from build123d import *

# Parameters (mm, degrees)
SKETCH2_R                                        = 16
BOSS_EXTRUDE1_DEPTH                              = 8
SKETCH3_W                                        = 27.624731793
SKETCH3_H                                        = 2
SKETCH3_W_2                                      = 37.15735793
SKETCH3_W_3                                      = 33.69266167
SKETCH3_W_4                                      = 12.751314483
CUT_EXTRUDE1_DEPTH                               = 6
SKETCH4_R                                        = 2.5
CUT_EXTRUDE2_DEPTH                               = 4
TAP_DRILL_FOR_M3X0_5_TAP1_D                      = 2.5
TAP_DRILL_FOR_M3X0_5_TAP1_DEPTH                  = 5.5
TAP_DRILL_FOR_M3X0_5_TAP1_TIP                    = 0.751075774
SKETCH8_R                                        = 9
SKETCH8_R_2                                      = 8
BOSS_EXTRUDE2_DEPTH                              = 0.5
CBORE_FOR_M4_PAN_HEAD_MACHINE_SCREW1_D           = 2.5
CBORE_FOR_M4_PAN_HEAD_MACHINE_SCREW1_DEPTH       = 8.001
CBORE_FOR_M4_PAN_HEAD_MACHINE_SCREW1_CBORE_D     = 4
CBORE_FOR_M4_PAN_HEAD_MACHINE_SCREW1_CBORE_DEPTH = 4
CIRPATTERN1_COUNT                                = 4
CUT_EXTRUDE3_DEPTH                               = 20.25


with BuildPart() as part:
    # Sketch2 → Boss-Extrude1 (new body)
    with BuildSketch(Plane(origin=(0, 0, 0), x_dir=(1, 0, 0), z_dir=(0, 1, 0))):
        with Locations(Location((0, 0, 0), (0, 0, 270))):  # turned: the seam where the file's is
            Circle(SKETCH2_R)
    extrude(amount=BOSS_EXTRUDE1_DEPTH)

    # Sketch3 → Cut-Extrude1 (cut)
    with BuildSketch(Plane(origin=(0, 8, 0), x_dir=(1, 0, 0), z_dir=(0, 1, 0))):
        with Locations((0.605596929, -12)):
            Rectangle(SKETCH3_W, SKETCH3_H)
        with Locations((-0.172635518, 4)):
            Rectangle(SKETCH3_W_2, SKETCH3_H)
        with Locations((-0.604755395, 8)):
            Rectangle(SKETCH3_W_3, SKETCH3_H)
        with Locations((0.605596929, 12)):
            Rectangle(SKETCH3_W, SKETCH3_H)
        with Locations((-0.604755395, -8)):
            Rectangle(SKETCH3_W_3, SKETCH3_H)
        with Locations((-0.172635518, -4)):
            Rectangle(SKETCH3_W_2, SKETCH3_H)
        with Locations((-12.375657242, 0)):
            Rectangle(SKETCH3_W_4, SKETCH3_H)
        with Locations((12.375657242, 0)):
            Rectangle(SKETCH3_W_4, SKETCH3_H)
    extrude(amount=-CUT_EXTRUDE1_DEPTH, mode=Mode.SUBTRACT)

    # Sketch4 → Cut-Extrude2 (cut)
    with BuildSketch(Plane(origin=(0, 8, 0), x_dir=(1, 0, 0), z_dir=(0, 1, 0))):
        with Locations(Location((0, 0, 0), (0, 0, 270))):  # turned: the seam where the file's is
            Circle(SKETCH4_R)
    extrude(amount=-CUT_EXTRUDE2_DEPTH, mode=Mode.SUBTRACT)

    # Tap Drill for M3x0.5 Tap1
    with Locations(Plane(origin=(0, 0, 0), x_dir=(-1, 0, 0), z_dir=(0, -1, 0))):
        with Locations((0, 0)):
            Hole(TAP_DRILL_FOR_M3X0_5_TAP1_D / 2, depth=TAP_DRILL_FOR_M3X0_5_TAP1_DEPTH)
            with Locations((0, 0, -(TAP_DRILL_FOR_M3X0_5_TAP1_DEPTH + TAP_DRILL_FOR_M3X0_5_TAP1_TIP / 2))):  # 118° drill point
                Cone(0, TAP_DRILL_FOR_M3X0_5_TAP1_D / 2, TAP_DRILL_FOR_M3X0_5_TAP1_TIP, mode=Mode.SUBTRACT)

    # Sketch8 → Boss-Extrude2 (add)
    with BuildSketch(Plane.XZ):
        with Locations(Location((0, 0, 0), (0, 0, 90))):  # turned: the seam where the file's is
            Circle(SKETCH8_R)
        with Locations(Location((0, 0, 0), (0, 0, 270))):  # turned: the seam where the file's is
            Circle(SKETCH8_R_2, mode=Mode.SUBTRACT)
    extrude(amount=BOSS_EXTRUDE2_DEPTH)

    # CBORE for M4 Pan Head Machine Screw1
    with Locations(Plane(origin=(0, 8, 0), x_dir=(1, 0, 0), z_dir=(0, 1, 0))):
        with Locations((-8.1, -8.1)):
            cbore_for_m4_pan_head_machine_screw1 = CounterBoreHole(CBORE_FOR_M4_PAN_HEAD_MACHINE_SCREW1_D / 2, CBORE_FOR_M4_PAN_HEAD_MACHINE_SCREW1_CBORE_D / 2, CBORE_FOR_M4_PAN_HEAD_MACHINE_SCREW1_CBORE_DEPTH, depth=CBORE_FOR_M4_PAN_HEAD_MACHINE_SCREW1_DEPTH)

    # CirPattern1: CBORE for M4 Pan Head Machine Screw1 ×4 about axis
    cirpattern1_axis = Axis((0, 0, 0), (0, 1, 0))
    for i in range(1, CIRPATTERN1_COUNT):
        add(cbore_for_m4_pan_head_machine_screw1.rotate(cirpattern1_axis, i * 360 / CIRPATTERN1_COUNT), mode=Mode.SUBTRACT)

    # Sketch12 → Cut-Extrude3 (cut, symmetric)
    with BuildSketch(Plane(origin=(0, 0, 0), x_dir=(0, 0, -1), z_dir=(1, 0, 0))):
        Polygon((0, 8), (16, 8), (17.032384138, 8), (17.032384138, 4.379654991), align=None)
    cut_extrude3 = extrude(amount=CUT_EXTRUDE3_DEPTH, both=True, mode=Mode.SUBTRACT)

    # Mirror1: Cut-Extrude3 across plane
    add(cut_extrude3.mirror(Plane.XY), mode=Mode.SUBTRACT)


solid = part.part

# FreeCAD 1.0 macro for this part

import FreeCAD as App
import Part
import Sketcher
Q = App.Units.Quantity

doc = App.newDocument("Part")
params = doc.addObject("Spreadsheet::Sheet", "Params")
for row, (alias, value) in enumerate([
    ("sketch1_diameter", "32 mm"),
    ("pad1_length", "8 mm"),
    ("sketch2_height", "2 mm"),
    ("pocket1_length", "6 mm"),
    ("sketch3_diameter", "5 mm"),
    ("pocket2_length", "4 mm"),
    ("sketch4_diameter", "2.5 mm"),
    ("hole_diameter", "2.5 mm"),
    ("hole_depth", "5.5 mm"),
    ("sketch5_diameter", "18 mm"),
    ("sketch5_diameter2", "16 mm"),
    ("pad2_length", "0.5 mm"),
    ("sketch6_diameter", "2.5 mm"),
    ("hole2_diameter", "2.5 mm"),
    ("hole2_depth", "8.001 mm"),
    ("hole2_cbore_diameter", "4 mm"),
    ("hole2_cbore_depth", "4 mm"),
    ("pocket3_length", "40.5 mm"),
], start=1):
    params.set(f"A{row}", alias)
    params.set(f"B{row}", "=" + value)
    params.setAlias(f"B{row}", alias)

body = doc.addObject("PartDesign::Body", "Body")

sketch1 = doc.addObject("Sketcher::SketchObject", "Sketch")
body.addObject(sketch1)
sketch1.AttachmentSupport = (doc.XZ_Plane, [""])
sketch1.MapMode = "FlatFace"
sketch1.addGeometry(Part.Circle(App.Vector(0, 0, 0), App.Vector(0, 0, 1), 16), False)
sketch1.addConstraint(Sketcher.Constraint("Coincident", 0, 3, -1, 1))
sketch1.addConstraint(Sketcher.Constraint("Diameter", 0, Q("32 mm")))
sketch1.setExpression("Constraints[1]", "Params.sketch1_diameter")
pad1 = doc.addObject("PartDesign::Pad", "Pad")
body.addObject(pad1)
pad1.Profile = sketch1
pad1.setExpression("Length", "Params.pad1_length")
pad1.Reversed = True

sketch2 = doc.addObject("Sketcher::SketchObject", "Sketch001")
body.addObject(sketch2)
sketch2.AttachmentSupport = (doc.XZ_Plane, [""])
sketch2.MapMode = "FlatFace"
sketch2.AttachmentOffset = App.Placement(App.Vector(0, 0, -8), App.Rotation())
sketch2.addGeometry(Part.LineSegment(App.Vector(-13.2, 11, 0), App.Vector(-13.2, 13, 0)), False)
sketch2.addGeometry(Part.LineSegment(App.Vector(-13.2, 13, 0), App.Vector(14.4, 13, 0)), False)
sketch2.addGeometry(Part.LineSegment(App.Vector(14.4, 13, 0), App.Vector(14.4, 11, 0)), False)
sketch2.addGeometry(Part.LineSegment(App.Vector(14.4, 11, 0), App.Vector(-13.2, 11, 0)), False)
sketch2.addGeometry(Part.LineSegment(App.Vector(-18.8, -5, 0), App.Vector(-18.8, -3, 0)), False)
sketch2.addGeometry(Part.LineSegment(App.Vector(-18.8, -3, 0), App.Vector(18.4, -3, 0)), False)
sketch2.addGeometry(Part.LineSegment(App.Vector(18.4, -3, 0), App.Vector(18.4, -5, 0)), False)
sketch2.addGeometry(Part.LineSegment(App.Vector(18.4, -5, 0), App.Vector(-18.8, -5, 0)), False)
sketch2.addGeometry(Part.LineSegment(App.Vector(-17.5, -9, 0), App.Vector(-17.5, -7, 0)), False)
sketch2.addGeometry(Part.LineSegment(App.Vector(-17.5, -7, 0), App.Vector(16.2, -7, 0)), False)
sketch2.addGeometry(Part.LineSegment(App.Vector(16.2, -7, 0), App.Vector(16.2, -9, 0)), False)
sketch2.addGeometry(Part.LineSegment(App.Vector(16.2, -9, 0), App.Vector(-17.5, -9, 0)), False)
sketch2.addGeometry(Part.LineSegment(App.Vector(-13.2, -13, 0), App.Vector(-13.2, -11, 0)), False)
sketch2.addGeometry(Part.LineSegment(App.Vector(-13.2, -11, 0), App.Vector(14.4, -11, 0)), False)
sketch2.addGeometry(Part.LineSegment(App.Vector(14.4, -11, 0), App.Vector(14.4, -13, 0)), False)
sketch2.addGeometry(Part.LineSegment(App.Vector(14.4, -13, 0), App.Vector(-13.2, -13, 0)), False)
sketch2.addGeometry(Part.LineSegment(App.Vector(-17.5, 7, 0), App.Vector(-17.5, 9, 0)), False)
sketch2.addGeometry(Part.LineSegment(App.Vector(-17.5, 9, 0), App.Vector(16.2, 9, 0)), False)
sketch2.addGeometry(Part.LineSegment(App.Vector(16.2, 9, 0), App.Vector(16.2, 7, 0)), False)
sketch2.addGeometry(Part.LineSegment(App.Vector(16.2, 7, 0), App.Vector(-17.5, 7, 0)), False)
sketch2.addGeometry(Part.LineSegment(App.Vector(-18.8, 3, 0), App.Vector(-18.8, 5, 0)), False)
sketch2.addGeometry(Part.LineSegment(App.Vector(-18.8, 5, 0), App.Vector(18.4, 5, 0)), False)
sketch2.addGeometry(Part.LineSegment(App.Vector(18.4, 5, 0), App.Vector(18.4, 3, 0)), False)
sketch2.addGeometry(Part.LineSegment(App.Vector(18.4, 3, 0), App.Vector(-18.8, 3, 0)), False)
sketch2.addGeometry(Part.LineSegment(App.Vector(-18.8, -1, 0), App.Vector(-18.8, 1, 0)), False)
sketch2.addGeometry(Part.LineSegment(App.Vector(-18.8, 1, 0), App.Vector(-6, 1, 0)), False)
sketch2.addGeometry(Part.LineSegment(App.Vector(-6, 1, 0), App.Vector(-6, -1, 0)), False)
sketch2.addGeometry(Part.LineSegment(App.Vector(-6, -1, 0), App.Vector(-18.8, -1, 0)), False)
sketch2.addGeometry(Part.LineSegment(App.Vector(6, -1, 0), App.Vector(6, 1, 0)), False)
sketch2.addGeometry(Part.LineSegment(App.Vector(6, 1, 0), App.Vector(18.8, 1, 0)), False)
sketch2.addGeometry(Part.LineSegment(App.Vector(18.8, 1, 0), App.Vector(18.8, -1, 0)), False)
sketch2.addGeometry(Part.LineSegment(App.Vector(18.8, -1, 0), App.Vector(6, -1, 0)), False)
sketch2.addConstraint(Sketcher.Constraint("Coincident", 0, 2, 1, 1))
sketch2.addConstraint(Sketcher.Constraint("Coincident", 1, 2, 2, 1))
sketch2.addConstraint(Sketcher.Constraint("Coincident", 2, 2, 3, 1))
sketch2.addConstraint(Sketcher.Constraint("Coincident", 3, 2, 0, 1))
sketch2.addConstraint(Sketcher.Constraint("Coincident", 4, 2, 5, 1))
sketch2.addConstraint(Sketcher.Constraint("Coincident", 5, 2, 6, 1))
sketch2.addConstraint(Sketcher.Constraint("Coincident", 6, 2, 7, 1))
sketch2.addConstraint(Sketcher.Constraint("Coincident", 7, 2, 4, 1))
sketch2.addConstraint(Sketcher.Constraint("Coincident", 8, 2, 9, 1))
sketch2.addConstraint(Sketcher.Constraint("Coincident", 9, 2, 10, 1))
sketch2.addConstraint(Sketcher.Constraint("Coincident", 10, 2, 11, 1))
sketch2.addConstraint(Sketcher.Constraint("Coincident", 11, 2, 8, 1))
sketch2.addConstraint(Sketcher.Constraint("Coincident", 12, 2, 13, 1))
sketch2.addConstraint(Sketcher.Constraint("Coincident", 13, 2, 14, 1))
sketch2.addConstraint(Sketcher.Constraint("Coincident", 14, 2, 15, 1))
sketch2.addConstraint(Sketcher.Constraint("Coincident", 15, 2, 12, 1))
sketch2.addConstraint(Sketcher.Constraint("Coincident", 16, 2, 17, 1))
sketch2.addConstraint(Sketcher.Constraint("Coincident", 17, 2, 18, 1))
sketch2.addConstraint(Sketcher.Constraint("Coincident", 18, 2, 19, 1))
sketch2.addConstraint(Sketcher.Constraint("Coincident", 19, 2, 16, 1))
sketch2.addConstraint(Sketcher.Constraint("Coincident", 20, 2, 21, 1))
sketch2.addConstraint(Sketcher.Constraint("Coincident", 21, 2, 22, 1))
sketch2.addConstraint(Sketcher.Constraint("Coincident", 22, 2, 23, 1))
sketch2.addConstraint(Sketcher.Constraint("Coincident", 23, 2, 20, 1))
sketch2.addConstraint(Sketcher.Constraint("Coincident", 24, 2, 25, 1))
sketch2.addConstraint(Sketcher.Constraint("Coincident", 25, 2, 26, 1))
sketch2.addConstraint(Sketcher.Constraint("Coincident", 26, 2, 27, 1))
sketch2.addConstraint(Sketcher.Constraint("Coincident", 27, 2, 24, 1))
sketch2.addConstraint(Sketcher.Constraint("Coincident", 28, 2, 29, 1))
sketch2.addConstraint(Sketcher.Constraint("Coincident", 29, 2, 30, 1))
sketch2.addConstraint(Sketcher.Constraint("Coincident", 30, 2, 31, 1))
sketch2.addConstraint(Sketcher.Constraint("Coincident", 31, 2, 28, 1))
sketch2.addConstraint(Sketcher.Constraint("Vertical", 0))
sketch2.addConstraint(Sketcher.Constraint("Horizontal", 1))
sketch2.addConstraint(Sketcher.Constraint("Vertical", 2))
sketch2.addConstraint(Sketcher.Constraint("Horizontal", 3))
sketch2.addConstraint(Sketcher.Constraint("Vertical", 4))
sketch2.addConstraint(Sketcher.Constraint("Horizontal", 5))
sketch2.addConstraint(Sketcher.Constraint("Vertical", 6))
sketch2.addConstraint(Sketcher.Constraint("Horizontal", 7))
sketch2.addConstraint(Sketcher.Constraint("Vertical", 8))
sketch2.addConstraint(Sketcher.Constraint("Horizontal", 9))
sketch2.addConstraint(Sketcher.Constraint("Vertical", 10))
sketch2.addConstraint(Sketcher.Constraint("Horizontal", 11))
sketch2.addConstraint(Sketcher.Constraint("Vertical", 12))
sketch2.addConstraint(Sketcher.Constraint("Horizontal", 13))
sketch2.addConstraint(Sketcher.Constraint("Vertical", 14))
sketch2.addConstraint(Sketcher.Constraint("Horizontal", 15))
sketch2.addConstraint(Sketcher.Constraint("Vertical", 16))
sketch2.addConstraint(Sketcher.Constraint("Horizontal", 17))
sketch2.addConstraint(Sketcher.Constraint("Vertical", 18))
sketch2.addConstraint(Sketcher.Constraint("Horizontal", 19))
sketch2.addConstraint(Sketcher.Constraint("Vertical", 20))
sketch2.addConstraint(Sketcher.Constraint("Horizontal", 21))
sketch2.addConstraint(Sketcher.Constraint("Vertical", 22))
sketch2.addConstraint(Sketcher.Constraint("Horizontal", 23))
sketch2.addConstraint(Sketcher.Constraint("Vertical", 24))
sketch2.addConstraint(Sketcher.Constraint("Horizontal", 25))
sketch2.addConstraint(Sketcher.Constraint("Vertical", 26))
sketch2.addConstraint(Sketcher.Constraint("Horizontal", 27))
sketch2.addConstraint(Sketcher.Constraint("Vertical", 28))
sketch2.addConstraint(Sketcher.Constraint("Horizontal", 29))
sketch2.addConstraint(Sketcher.Constraint("Vertical", 30))
sketch2.addConstraint(Sketcher.Constraint("Horizontal", 31))
sketch2.addConstraint(Sketcher.Constraint("Symmetric", 26, 2, 28, 2, -1, 1))
sketch2.addConstraint(Sketcher.Constraint("Symmetric", 24, 2, 30, 2, -1, 1))
sketch2.addConstraint(Sketcher.Constraint("Symmetric", 3, 2, 12, 2, -1))
sketch2.addConstraint(Sketcher.Constraint("Symmetric", 1, 2, 14, 2, -1))
sketch2.addConstraint(Sketcher.Constraint("Symmetric", 11, 2, 16, 2, -1))
sketch2.addConstraint(Sketcher.Constraint("Symmetric", 9, 2, 18, 2, -1))
sketch2.addConstraint(Sketcher.Constraint("Symmetric", 7, 2, 20, 2, -1))
sketch2.addConstraint(Sketcher.Constraint("Symmetric", 5, 2, 22, 2, -1))
sketch2.addConstraint(Sketcher.Constraint("Horizontal", 25, 2, 28, 2))
sketch2.addConstraint(Sketcher.Constraint("Vertical", 23, 2, 24, 2))
sketch2.addConstraint(Sketcher.Constraint("Equal", 2, 4))
sketch2.addConstraint(Sketcher.Constraint("Equal", 6, 8))
sketch2.addConstraint(Sketcher.Constraint("Equal", 22, 24))
sketch2.addConstraint(Sketcher.Constraint("DistanceY", 0, 1, 0, 2, Q("2 mm")))
sketch2.addConstraint(Sketcher.Constraint("DistanceY", -1, 1, 0, 2, Q("13 mm")))
sketch2.addConstraint(Sketcher.Constraint("DistanceY", 4, 2, -1, 1, Q("3 mm")))
sketch2.addConstraint(Sketcher.Constraint("DistanceY", 8, 2, -1, 1, Q("7 mm")))
sketch2.addConstraint(Sketcher.Constraint("DistanceX", 25, 2, -1, 1, Q("6 mm")))
sketch2.addConstraint(Sketcher.Constraint("DistanceX", 1, 1, 1, 2, Q("27.624732 mm")))
sketch2.addConstraint(Sketcher.Constraint("DistanceX", 9, 1, 9, 2, Q("33.692662 mm")))
sketch2.addConstraint(Sketcher.Constraint("DistanceX", 5, 1, 5, 2, Q("37.157358 mm")))
sketch2.addConstraint(Sketcher.Constraint("DistanceX", 25, 1, 25, 2, Q("12.751314 mm")))
sketch2.addConstraint(Sketcher.Constraint("DistanceX", 0, 2, -1, 1, Q("13.206769 mm")))
sketch2.addConstraint(Sketcher.Constraint("DistanceX", 7, 2, 8, 2, Q("1.300228 mm")))
sketch2.setExpression("Constraints[77]", "Params.sketch2_height")
pocket1 = doc.addObject("PartDesign::Pocket", "Pocket")
body.addObject(pocket1)
pocket1.Profile = sketch2
pocket1.setExpression("Length", "Params.pocket1_length")
pocket1.Reversed = True

sketch3 = doc.addObject("Sketcher::SketchObject", "Sketch002")
body.addObject(sketch3)
sketch3.AttachmentSupport = (doc.XZ_Plane, [""])
sketch3.MapMode = "FlatFace"
sketch3.AttachmentOffset = App.Placement(App.Vector(0, 0, -8), App.Rotation())
sketch3.addGeometry(Part.Circle(App.Vector(0, 0, 0), App.Vector(0, 0, 1), 2.5), False)
sketch3.addConstraint(Sketcher.Constraint("Coincident", 0, 3, -1, 1))
sketch3.addConstraint(Sketcher.Constraint("Diameter", 0, Q("5 mm")))
sketch3.setExpression("Constraints[1]", "Params.sketch3_diameter")
pocket2 = doc.addObject("PartDesign::Pocket", "Pocket001")
body.addObject(pocket2)
pocket2.Profile = sketch3
pocket2.setExpression("Length", "Params.pocket2_length")
pocket2.Reversed = True

sketch4 = doc.addObject("Sketcher::SketchObject", "Sketch003")
body.addObject(sketch4)
sketch4.AttachmentSupport = (doc.XZ_Plane, [""])
sketch4.MapMode = "FlatFace"
sketch4.addGeometry(Part.Circle(App.Vector(0, 0, 0), App.Vector(0, 0, 1), 1.2), False)
sketch4.addConstraint(Sketcher.Constraint("Coincident", 0, 3, -1, 1))
sketch4.addConstraint(Sketcher.Constraint("Diameter", 0, Q("2.5 mm")))
sketch4.setExpression("Constraints[1]", "Params.sketch4_diameter")
doc.recompute()
hole = doc.addObject("PartDesign::Hole", "Hole")
body.addObject(hole)
hole.Profile = sketch4
hole.ThreadType = "None"
hole.setExpression("Diameter", "Params.hole_diameter")
hole.DepthType = "Dimension"
hole.setExpression("Depth", "Params.hole_depth")
hole.DrillPoint = "Angled"
hole.DrillPointAngle = 118

sketch5 = doc.addObject("Sketcher::SketchObject", "Sketch004")
body.addObject(sketch5)
sketch5.AttachmentSupport = (doc.XZ_Plane, [""])
sketch5.MapMode = "FlatFace"
sketch5.addGeometry(Part.Circle(App.Vector(0, 0, 0), App.Vector(0, 0, 1), 9), False)
sketch5.addGeometry(Part.Circle(App.Vector(0, 0, 0), App.Vector(0, 0, 1), 8), False)
sketch5.addConstraint(Sketcher.Constraint("Coincident", 0, 3, -1, 1))
sketch5.addConstraint(Sketcher.Constraint("Coincident", 1, 3, -1, 1))
sketch5.addConstraint(Sketcher.Constraint("Diameter", 0, Q("18 mm")))
sketch5.addConstraint(Sketcher.Constraint("Diameter", 1, Q("16 mm")))
sketch5.setExpression("Constraints[2]", "Params.sketch5_diameter")
sketch5.setExpression("Constraints[3]", "Params.sketch5_diameter2")
pad2 = doc.addObject("PartDesign::Pad", "Pad001")
body.addObject(pad2)
pad2.Profile = sketch5
pad2.setExpression("Length", "Params.pad2_length")

sketch6 = doc.addObject("Sketcher::SketchObject", "Sketch005")
body.addObject(sketch6)
sketch6.AttachmentSupport = (doc.XZ_Plane, [""])
sketch6.MapMode = "FlatFace"
sketch6.AttachmentOffset = App.Placement(App.Vector(0, 0, -8), App.Rotation())
sketch6.addGeometry(Part.Circle(App.Vector(-8.1, 8.1, 0), App.Vector(0, 0, 1), 1.2), False)
sketch6.addConstraint(Sketcher.Constraint("Diameter", 0, Q("2.5 mm")))
sketch6.addConstraint(Sketcher.Constraint("DistanceX", 0, 3, -1, 1, Q("8.1 mm")))
sketch6.addConstraint(Sketcher.Constraint("DistanceY", -1, 1, 0, 3, Q("8.1 mm")))
sketch6.setExpression("Constraints[0]", "Params.sketch6_diameter")
doc.recompute()
hole2 = doc.addObject("PartDesign::Hole", "Hole001")
body.addObject(hole2)
hole2.Profile = sketch6
hole2.ThreadType = "None"
hole2.setExpression("Diameter", "Params.hole2_diameter")
hole2.DepthType = "Dimension"
hole2.setExpression("Depth", "Params.hole2_depth")
hole2.DrillPoint = "Flat"
hole2.HoleCutType = "Counterbore"
hole2.setExpression("HoleCutDiameter", "Params.hole2_cbore_diameter")
hole2.setExpression("HoleCutDepth", "Params.hole2_cbore_depth")
hole2.Reversed = True
doc.recompute()

polarpattern = doc.addObject("PartDesign::PolarPattern", "PolarPattern")
body.addObject(polarpattern)
polarpattern.Originals = [hole2]
polarpattern.Axis = (doc.Y_Axis, [""])
polarpattern.Angle = 360
polarpattern.Occurrences = 4
body.Tip = polarpattern

sketch7 = doc.addObject("Sketcher::SketchObject", "Sketch006")
body.addObject(sketch7)
sketch7.AttachmentSupport = (doc.YZ_Plane, [""])
sketch7.MapMode = "FlatFace"
sketch7.addGeometry(Part.LineSegment(App.Vector(8, -17, 0), App.Vector(8, 0, 0)), False)
sketch7.addGeometry(Part.LineSegment(App.Vector(8, 0, 0), App.Vector(4.4, -17, 0)), False)
sketch7.addGeometry(Part.LineSegment(App.Vector(4.4, -17, 0), App.Vector(8, -17, 0)), False)
sketch7.addConstraint(Sketcher.Constraint("Coincident", 0, 2, 1, 1))
sketch7.addConstraint(Sketcher.Constraint("Coincident", 1, 2, 2, 1))
sketch7.addConstraint(Sketcher.Constraint("Coincident", 2, 2, 0, 1))
sketch7.addConstraint(Sketcher.Constraint("Vertical", 0))
sketch7.addConstraint(Sketcher.Constraint("Horizontal", 2))
sketch7.addConstraint(Sketcher.Constraint("PointOnObject", 0, 2, -1))
sketch7.addConstraint(Sketcher.Constraint("Angle", 1, Q("-102 deg")))
sketch7.addConstraint(Sketcher.Constraint("DistanceX", -1, 1, 0, 2, Q("8 mm")))
sketch7.addConstraint(Sketcher.Constraint("DistanceX", 2, 1, 2, 2, Q("3.620345 mm")))
pocket3 = doc.addObject("PartDesign::Pocket", "Pocket002")
body.addObject(pocket3)
pocket3.Profile = sketch7
pocket3.setExpression("Length", "Params.pocket3_length")
pocket3.Midplane = True
doc.recompute()

mirrored = doc.addObject("PartDesign::Mirrored", "Mirrored")
body.addObject(mirrored)
mirrored.Originals = [pocket3]
mirrored.MirrorPlane = (doc.XY_Plane, [""])
body.Tip = mirrored

doc.recompute()
